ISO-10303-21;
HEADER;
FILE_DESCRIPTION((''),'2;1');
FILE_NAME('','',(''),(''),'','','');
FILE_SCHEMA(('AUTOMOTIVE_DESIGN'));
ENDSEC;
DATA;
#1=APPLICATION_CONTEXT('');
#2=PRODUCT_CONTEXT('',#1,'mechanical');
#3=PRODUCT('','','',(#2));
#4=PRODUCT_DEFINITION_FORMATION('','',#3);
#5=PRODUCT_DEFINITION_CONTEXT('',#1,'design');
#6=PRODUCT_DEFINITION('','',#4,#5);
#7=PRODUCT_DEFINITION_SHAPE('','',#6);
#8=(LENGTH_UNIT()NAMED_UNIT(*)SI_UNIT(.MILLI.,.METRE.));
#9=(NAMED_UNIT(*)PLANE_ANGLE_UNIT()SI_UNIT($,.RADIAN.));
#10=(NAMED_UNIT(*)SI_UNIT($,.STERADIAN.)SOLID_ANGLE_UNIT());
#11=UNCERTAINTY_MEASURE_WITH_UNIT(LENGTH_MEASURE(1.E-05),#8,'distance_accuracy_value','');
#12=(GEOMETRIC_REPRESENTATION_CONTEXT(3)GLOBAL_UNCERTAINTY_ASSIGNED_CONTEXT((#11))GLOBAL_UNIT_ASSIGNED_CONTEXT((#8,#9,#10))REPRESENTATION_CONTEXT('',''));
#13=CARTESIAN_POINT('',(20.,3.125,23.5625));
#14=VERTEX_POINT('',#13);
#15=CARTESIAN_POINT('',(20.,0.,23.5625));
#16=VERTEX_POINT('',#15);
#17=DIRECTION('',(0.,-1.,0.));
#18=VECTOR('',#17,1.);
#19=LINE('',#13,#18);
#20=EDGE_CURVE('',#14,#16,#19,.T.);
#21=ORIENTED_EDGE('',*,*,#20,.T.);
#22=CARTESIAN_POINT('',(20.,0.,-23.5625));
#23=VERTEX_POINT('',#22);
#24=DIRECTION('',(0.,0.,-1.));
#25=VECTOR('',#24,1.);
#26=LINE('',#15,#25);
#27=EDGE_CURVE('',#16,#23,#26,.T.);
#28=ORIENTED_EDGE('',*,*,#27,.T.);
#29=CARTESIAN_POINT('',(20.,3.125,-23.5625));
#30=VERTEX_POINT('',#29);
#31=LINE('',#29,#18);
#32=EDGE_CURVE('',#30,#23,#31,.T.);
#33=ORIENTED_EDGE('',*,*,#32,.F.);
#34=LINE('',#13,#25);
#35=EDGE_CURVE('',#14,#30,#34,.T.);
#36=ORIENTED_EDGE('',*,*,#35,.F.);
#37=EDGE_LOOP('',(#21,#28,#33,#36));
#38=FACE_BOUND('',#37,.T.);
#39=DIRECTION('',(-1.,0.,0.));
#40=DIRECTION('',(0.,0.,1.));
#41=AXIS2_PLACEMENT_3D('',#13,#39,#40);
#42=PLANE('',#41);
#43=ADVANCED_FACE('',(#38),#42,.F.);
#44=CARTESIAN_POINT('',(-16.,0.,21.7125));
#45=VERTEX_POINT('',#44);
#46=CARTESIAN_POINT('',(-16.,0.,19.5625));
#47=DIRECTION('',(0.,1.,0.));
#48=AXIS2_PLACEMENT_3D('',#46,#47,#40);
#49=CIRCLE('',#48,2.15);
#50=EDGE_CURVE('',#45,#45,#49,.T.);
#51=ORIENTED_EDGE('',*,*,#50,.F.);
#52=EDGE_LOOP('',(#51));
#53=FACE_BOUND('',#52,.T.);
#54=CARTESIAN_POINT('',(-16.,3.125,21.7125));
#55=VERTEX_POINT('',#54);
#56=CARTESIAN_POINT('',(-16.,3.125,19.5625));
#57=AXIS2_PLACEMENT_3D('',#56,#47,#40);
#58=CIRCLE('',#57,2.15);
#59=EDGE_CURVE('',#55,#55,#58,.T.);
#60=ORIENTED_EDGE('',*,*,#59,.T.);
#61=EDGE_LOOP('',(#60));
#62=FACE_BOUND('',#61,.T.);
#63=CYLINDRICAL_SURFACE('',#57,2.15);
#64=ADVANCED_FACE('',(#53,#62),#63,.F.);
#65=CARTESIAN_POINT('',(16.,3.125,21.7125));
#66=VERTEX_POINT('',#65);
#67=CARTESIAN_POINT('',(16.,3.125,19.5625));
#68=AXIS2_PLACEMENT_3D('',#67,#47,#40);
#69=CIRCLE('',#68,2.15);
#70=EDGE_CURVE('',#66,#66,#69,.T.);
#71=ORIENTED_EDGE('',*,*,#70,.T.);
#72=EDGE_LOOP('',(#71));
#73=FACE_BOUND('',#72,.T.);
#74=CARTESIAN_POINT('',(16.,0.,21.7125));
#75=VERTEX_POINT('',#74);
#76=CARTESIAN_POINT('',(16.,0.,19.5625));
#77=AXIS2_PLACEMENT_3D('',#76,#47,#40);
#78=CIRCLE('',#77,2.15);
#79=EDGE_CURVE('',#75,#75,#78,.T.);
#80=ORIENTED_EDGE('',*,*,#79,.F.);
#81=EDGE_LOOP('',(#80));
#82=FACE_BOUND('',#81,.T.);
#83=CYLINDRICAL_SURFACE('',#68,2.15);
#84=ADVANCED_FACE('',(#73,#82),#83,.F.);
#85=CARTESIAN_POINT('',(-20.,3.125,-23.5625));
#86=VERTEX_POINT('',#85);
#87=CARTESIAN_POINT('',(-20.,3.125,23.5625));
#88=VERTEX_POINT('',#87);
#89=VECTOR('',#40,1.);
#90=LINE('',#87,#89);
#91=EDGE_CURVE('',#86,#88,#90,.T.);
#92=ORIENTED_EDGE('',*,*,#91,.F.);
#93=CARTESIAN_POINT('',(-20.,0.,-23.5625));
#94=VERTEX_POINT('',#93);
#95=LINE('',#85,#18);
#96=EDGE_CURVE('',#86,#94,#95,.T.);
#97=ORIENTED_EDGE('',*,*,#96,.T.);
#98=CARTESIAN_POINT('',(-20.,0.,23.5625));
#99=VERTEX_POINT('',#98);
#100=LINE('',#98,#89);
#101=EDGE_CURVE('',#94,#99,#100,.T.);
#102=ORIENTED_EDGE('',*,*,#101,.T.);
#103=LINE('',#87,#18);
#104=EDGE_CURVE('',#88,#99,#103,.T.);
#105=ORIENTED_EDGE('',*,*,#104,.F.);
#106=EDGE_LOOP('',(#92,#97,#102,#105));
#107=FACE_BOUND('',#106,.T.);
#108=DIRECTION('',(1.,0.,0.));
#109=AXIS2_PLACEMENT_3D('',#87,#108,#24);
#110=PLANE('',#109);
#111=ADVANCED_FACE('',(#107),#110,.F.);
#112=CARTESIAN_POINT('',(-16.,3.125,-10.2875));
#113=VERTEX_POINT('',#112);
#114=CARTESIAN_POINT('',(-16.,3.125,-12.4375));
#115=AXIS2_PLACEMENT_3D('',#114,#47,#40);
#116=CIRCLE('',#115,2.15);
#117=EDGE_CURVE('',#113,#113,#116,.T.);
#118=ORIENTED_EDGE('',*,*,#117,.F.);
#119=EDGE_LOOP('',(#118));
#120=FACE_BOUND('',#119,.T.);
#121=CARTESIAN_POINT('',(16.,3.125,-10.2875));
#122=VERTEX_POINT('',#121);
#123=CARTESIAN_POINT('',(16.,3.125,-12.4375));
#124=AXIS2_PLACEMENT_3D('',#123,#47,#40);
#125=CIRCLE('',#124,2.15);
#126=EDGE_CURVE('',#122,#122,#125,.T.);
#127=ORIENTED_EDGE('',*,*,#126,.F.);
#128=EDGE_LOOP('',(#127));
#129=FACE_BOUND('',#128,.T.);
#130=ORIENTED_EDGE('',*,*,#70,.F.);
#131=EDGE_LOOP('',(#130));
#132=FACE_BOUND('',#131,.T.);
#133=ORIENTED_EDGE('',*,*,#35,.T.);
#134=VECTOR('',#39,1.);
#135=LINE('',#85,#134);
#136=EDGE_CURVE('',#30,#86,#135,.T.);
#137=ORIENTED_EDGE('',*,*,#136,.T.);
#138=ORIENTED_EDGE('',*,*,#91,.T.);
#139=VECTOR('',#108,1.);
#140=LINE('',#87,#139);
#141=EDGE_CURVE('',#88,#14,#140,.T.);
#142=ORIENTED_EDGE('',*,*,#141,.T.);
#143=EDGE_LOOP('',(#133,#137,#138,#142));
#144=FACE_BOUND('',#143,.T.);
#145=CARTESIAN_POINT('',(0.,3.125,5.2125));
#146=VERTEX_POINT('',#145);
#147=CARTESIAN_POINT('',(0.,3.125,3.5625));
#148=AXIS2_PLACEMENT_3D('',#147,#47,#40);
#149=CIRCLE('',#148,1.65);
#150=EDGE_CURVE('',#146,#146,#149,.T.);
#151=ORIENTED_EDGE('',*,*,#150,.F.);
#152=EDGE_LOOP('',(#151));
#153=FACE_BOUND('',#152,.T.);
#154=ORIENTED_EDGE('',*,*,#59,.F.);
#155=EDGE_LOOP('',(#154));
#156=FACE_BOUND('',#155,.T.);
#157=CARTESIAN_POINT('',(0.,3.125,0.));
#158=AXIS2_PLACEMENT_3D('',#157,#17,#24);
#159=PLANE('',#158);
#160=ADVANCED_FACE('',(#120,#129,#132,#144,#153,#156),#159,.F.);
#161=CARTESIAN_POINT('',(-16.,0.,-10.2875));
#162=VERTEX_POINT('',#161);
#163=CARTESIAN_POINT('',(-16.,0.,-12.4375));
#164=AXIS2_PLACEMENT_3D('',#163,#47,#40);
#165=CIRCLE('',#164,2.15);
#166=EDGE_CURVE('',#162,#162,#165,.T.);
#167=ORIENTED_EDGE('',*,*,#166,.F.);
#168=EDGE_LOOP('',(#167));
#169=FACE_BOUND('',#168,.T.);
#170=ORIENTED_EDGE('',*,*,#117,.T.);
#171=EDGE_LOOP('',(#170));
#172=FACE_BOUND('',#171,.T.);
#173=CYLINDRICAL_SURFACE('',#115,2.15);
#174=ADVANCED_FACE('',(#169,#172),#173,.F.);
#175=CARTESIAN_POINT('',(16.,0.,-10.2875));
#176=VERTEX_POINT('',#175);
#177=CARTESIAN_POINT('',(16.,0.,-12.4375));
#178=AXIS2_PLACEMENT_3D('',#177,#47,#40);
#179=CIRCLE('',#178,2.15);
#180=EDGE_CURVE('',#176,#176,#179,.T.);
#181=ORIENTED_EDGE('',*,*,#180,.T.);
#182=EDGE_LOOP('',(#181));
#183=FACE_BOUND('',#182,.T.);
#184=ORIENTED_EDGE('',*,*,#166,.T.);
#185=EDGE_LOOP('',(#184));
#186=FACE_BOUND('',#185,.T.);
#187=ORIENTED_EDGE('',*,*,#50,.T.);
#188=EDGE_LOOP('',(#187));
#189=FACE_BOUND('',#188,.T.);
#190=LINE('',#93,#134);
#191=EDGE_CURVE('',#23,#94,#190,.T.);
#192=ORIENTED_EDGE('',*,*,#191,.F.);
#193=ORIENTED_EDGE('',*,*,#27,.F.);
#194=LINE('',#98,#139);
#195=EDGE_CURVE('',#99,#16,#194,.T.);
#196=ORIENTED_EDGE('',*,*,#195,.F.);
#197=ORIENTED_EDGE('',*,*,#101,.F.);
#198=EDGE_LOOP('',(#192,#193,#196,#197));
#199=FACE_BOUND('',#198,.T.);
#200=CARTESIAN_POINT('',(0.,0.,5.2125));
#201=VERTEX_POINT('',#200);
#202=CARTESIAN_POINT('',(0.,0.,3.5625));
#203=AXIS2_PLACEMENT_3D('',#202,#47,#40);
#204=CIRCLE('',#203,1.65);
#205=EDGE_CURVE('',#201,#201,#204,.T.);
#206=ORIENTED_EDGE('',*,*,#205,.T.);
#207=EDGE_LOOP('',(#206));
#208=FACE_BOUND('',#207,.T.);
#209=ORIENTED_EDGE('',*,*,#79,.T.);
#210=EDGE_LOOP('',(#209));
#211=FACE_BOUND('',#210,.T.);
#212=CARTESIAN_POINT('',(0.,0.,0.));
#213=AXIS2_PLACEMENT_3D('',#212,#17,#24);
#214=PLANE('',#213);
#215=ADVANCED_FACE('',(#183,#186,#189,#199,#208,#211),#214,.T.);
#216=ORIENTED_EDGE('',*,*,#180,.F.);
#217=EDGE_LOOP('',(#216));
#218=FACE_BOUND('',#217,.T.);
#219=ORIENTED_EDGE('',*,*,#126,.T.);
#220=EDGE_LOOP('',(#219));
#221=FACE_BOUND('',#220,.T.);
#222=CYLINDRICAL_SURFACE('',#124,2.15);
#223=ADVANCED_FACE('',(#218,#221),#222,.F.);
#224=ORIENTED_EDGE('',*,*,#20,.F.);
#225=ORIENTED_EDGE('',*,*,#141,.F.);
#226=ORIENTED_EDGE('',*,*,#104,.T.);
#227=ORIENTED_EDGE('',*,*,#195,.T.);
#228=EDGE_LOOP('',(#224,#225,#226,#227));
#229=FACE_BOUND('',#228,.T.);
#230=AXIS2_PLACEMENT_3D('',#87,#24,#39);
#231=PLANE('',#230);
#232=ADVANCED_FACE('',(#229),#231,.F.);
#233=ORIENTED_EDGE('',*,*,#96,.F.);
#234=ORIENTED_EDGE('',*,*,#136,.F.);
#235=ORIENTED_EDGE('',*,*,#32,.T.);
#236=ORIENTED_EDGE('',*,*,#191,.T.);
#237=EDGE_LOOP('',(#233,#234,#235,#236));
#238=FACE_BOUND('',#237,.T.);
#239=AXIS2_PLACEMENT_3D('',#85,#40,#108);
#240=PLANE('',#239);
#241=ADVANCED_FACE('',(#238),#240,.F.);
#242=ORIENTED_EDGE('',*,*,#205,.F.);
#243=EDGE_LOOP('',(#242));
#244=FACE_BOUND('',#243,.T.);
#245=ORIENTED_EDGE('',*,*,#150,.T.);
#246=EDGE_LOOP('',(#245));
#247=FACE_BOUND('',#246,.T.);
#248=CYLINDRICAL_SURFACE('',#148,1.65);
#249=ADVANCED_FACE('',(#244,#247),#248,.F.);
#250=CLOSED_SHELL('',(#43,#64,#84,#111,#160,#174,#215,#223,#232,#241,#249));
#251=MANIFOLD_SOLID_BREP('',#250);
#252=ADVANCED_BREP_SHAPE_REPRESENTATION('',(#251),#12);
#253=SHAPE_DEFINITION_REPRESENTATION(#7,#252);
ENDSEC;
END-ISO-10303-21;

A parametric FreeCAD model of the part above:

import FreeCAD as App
import Part
import Sketcher
from FreeCAD import Vector


def add_polygon(sketch, points):
    """Adds a closed chain of lines whose ends are joined by coincident constraints."""
    first, n = sketch.GeometryCount, len(points)
    for a, b in zip(points, points[1:] + points[:1]):
        sketch.addGeometry(Part.LineSegment(App.Vector(*a, 0), App.Vector(*b, 0)), False)
    for i in range(n):
        sketch.addConstraint(Sketcher.Constraint("Coincident", first + i, 2, first + (i + 1) % n, 1))

doc = App.newDocument("Part")
params = doc.addObject("Spreadsheet::Sheet", "Params")
for row, (alias, value) in enumerate([
    ("sketch1_width", "40 mm"),
    ("pad1_length", "3.125 mm"),
    ("sketch2_diameter", "4.3 mm"),
    ("hole_diameter", "4.3 mm"),
    ("sketch3_diameter", "3.3 mm"),
    ("hole2_diameter", "3.3 mm"),
], start=1):
    params.set(f"A{row}", alias)
    params.set(f"B{row}", "=" + value)
    params.setAlias(f"B{row}", alias)

body = doc.addObject("PartDesign::Body", "Body")

# Sketch on XZ plane
sketch1 = body.newObject("Sketcher::SketchObject", "Sketch")
sketch1.AttachmentSupport = (doc.getObject("XZ_Plane"), [""])
sketch1.MapMode = "FlatFace"
add_polygon(sketch1, [(-20, -24), (-20, 24), (20, 24), (20, -24)])  # lines 0-3
sketch1.addConstraint([
    Sketcher.Constraint("Vertical", 0),
    Sketcher.Constraint("Horizontal", 1),
    Sketcher.Constraint("Vertical", 2),
    Sketcher.Constraint("Horizontal", 3),
    Sketcher.Constraint("Symmetric", 0, 2, 2, 2, -1, 1),
    Sketcher.Constraint("DistanceX", 1, 1, 1, 2, 40.0),
    Sketcher.Constraint("DistanceY", 0, 1, 0, 2, 47.125),
])
sketch1.setExpression("Constraints[9]", "Params.sketch1_width")
pad1 = body.newObject("PartDesign::Pad", "Pad")
pad1.Profile = sketch1
pad1.setExpression("Length", "Params.pad1_length")
pad1.Reversed = True

# Sketch on XZ plane
sketch2 = body.newObject("Sketcher::SketchObject", "Sketch001")
sketch2.AttachmentSupport = (doc.getObject("XZ_Plane"), [""])
sketch2.MapMode = "FlatFace"
sketch2.AttachmentOffset = App.Placement(Vector(0, 0, -3.125), App.Rotation())
sketch2.addGeometry([
    Part.Circle(Vector(16, 19.6, 0), Vector(0, 0, 1), 2.1),
    Part.Circle(Vector(-16, 19.6, 0), Vector(0, 0, 1), 2.1),
    Part.Circle(Vector(-16, -12.4, 0), Vector(0, 0, 1), 2.1),
    Part.Circle(Vector(16, -12.4, 0), Vector(0, 0, 1), 2.1),
], False)
sketch2.addConstraint([
    Sketcher.Constraint("Equal", 0, 1),
    Sketcher.Constraint("Equal", 1, 2),
    Sketcher.Constraint("Equal", 2, 3),
    Sketcher.Constraint("Symmetric", 0, 3, 1, 3, -2),
    Sketcher.Constraint("Symmetric", 2, 3, 3, 3, -2),
    Sketcher.Constraint("Vertical", 1, 3, 2, 3),
    Sketcher.Constraint("Diameter", 0, 4.3),
    Sketcher.Constraint("DistanceX", -1, 1, 0, 3, 16.0),
    Sketcher.Constraint("DistanceY", 2, 3, 1, 3, 32.0),
    Sketcher.Constraint("DistanceY", -1, 1, 0, 3, 19.5625),
])
sketch2.setExpression("Constraints[6]", "Params.sketch2_diameter")
doc.recompute()
hole = body.newObject("PartDesign::Hole", "Hole")
hole.Profile = sketch2
hole.ThreadType = "None"
hole.setExpression("Diameter", "Params.hole_diameter")
hole.DepthType = "ThroughAll"
hole.Reversed = True

# Sketch on XZ plane
sketch3 = body.newObject("Sketcher::SketchObject", "Sketch002")
sketch3.AttachmentSupport = (doc.getObject("XZ_Plane"), [""])
sketch3.MapMode = "FlatFace"
sketch3.AttachmentOffset = App.Placement(Vector(0, 0, -3.125), App.Rotation())
sketch3.addGeometry(Part.Circle(Vector(0, 3.6, 0), Vector(0, 0, 1), 1.6), False)
sketch3.addConstraint([
    Sketcher.Constraint("PointOnObject", 0, 3, -2),
    Sketcher.Constraint("Diameter", 0, 3.3),
    Sketcher.Constraint("DistanceY", -1, 1, 0, 3, 3.5625),
])
sketch3.setExpression("Constraints[1]", "Params.sketch3_diameter")
doc.recompute()
hole2 = body.newObject("PartDesign::Hole", "Hole001")
hole2.Profile = sketch3
hole2.ThreadType = "None"
hole2.setExpression("Diameter", "Params.hole2_diameter")
hole2.DepthType = "ThroughAll"
hole2.Reversed = True

doc.recompute()
